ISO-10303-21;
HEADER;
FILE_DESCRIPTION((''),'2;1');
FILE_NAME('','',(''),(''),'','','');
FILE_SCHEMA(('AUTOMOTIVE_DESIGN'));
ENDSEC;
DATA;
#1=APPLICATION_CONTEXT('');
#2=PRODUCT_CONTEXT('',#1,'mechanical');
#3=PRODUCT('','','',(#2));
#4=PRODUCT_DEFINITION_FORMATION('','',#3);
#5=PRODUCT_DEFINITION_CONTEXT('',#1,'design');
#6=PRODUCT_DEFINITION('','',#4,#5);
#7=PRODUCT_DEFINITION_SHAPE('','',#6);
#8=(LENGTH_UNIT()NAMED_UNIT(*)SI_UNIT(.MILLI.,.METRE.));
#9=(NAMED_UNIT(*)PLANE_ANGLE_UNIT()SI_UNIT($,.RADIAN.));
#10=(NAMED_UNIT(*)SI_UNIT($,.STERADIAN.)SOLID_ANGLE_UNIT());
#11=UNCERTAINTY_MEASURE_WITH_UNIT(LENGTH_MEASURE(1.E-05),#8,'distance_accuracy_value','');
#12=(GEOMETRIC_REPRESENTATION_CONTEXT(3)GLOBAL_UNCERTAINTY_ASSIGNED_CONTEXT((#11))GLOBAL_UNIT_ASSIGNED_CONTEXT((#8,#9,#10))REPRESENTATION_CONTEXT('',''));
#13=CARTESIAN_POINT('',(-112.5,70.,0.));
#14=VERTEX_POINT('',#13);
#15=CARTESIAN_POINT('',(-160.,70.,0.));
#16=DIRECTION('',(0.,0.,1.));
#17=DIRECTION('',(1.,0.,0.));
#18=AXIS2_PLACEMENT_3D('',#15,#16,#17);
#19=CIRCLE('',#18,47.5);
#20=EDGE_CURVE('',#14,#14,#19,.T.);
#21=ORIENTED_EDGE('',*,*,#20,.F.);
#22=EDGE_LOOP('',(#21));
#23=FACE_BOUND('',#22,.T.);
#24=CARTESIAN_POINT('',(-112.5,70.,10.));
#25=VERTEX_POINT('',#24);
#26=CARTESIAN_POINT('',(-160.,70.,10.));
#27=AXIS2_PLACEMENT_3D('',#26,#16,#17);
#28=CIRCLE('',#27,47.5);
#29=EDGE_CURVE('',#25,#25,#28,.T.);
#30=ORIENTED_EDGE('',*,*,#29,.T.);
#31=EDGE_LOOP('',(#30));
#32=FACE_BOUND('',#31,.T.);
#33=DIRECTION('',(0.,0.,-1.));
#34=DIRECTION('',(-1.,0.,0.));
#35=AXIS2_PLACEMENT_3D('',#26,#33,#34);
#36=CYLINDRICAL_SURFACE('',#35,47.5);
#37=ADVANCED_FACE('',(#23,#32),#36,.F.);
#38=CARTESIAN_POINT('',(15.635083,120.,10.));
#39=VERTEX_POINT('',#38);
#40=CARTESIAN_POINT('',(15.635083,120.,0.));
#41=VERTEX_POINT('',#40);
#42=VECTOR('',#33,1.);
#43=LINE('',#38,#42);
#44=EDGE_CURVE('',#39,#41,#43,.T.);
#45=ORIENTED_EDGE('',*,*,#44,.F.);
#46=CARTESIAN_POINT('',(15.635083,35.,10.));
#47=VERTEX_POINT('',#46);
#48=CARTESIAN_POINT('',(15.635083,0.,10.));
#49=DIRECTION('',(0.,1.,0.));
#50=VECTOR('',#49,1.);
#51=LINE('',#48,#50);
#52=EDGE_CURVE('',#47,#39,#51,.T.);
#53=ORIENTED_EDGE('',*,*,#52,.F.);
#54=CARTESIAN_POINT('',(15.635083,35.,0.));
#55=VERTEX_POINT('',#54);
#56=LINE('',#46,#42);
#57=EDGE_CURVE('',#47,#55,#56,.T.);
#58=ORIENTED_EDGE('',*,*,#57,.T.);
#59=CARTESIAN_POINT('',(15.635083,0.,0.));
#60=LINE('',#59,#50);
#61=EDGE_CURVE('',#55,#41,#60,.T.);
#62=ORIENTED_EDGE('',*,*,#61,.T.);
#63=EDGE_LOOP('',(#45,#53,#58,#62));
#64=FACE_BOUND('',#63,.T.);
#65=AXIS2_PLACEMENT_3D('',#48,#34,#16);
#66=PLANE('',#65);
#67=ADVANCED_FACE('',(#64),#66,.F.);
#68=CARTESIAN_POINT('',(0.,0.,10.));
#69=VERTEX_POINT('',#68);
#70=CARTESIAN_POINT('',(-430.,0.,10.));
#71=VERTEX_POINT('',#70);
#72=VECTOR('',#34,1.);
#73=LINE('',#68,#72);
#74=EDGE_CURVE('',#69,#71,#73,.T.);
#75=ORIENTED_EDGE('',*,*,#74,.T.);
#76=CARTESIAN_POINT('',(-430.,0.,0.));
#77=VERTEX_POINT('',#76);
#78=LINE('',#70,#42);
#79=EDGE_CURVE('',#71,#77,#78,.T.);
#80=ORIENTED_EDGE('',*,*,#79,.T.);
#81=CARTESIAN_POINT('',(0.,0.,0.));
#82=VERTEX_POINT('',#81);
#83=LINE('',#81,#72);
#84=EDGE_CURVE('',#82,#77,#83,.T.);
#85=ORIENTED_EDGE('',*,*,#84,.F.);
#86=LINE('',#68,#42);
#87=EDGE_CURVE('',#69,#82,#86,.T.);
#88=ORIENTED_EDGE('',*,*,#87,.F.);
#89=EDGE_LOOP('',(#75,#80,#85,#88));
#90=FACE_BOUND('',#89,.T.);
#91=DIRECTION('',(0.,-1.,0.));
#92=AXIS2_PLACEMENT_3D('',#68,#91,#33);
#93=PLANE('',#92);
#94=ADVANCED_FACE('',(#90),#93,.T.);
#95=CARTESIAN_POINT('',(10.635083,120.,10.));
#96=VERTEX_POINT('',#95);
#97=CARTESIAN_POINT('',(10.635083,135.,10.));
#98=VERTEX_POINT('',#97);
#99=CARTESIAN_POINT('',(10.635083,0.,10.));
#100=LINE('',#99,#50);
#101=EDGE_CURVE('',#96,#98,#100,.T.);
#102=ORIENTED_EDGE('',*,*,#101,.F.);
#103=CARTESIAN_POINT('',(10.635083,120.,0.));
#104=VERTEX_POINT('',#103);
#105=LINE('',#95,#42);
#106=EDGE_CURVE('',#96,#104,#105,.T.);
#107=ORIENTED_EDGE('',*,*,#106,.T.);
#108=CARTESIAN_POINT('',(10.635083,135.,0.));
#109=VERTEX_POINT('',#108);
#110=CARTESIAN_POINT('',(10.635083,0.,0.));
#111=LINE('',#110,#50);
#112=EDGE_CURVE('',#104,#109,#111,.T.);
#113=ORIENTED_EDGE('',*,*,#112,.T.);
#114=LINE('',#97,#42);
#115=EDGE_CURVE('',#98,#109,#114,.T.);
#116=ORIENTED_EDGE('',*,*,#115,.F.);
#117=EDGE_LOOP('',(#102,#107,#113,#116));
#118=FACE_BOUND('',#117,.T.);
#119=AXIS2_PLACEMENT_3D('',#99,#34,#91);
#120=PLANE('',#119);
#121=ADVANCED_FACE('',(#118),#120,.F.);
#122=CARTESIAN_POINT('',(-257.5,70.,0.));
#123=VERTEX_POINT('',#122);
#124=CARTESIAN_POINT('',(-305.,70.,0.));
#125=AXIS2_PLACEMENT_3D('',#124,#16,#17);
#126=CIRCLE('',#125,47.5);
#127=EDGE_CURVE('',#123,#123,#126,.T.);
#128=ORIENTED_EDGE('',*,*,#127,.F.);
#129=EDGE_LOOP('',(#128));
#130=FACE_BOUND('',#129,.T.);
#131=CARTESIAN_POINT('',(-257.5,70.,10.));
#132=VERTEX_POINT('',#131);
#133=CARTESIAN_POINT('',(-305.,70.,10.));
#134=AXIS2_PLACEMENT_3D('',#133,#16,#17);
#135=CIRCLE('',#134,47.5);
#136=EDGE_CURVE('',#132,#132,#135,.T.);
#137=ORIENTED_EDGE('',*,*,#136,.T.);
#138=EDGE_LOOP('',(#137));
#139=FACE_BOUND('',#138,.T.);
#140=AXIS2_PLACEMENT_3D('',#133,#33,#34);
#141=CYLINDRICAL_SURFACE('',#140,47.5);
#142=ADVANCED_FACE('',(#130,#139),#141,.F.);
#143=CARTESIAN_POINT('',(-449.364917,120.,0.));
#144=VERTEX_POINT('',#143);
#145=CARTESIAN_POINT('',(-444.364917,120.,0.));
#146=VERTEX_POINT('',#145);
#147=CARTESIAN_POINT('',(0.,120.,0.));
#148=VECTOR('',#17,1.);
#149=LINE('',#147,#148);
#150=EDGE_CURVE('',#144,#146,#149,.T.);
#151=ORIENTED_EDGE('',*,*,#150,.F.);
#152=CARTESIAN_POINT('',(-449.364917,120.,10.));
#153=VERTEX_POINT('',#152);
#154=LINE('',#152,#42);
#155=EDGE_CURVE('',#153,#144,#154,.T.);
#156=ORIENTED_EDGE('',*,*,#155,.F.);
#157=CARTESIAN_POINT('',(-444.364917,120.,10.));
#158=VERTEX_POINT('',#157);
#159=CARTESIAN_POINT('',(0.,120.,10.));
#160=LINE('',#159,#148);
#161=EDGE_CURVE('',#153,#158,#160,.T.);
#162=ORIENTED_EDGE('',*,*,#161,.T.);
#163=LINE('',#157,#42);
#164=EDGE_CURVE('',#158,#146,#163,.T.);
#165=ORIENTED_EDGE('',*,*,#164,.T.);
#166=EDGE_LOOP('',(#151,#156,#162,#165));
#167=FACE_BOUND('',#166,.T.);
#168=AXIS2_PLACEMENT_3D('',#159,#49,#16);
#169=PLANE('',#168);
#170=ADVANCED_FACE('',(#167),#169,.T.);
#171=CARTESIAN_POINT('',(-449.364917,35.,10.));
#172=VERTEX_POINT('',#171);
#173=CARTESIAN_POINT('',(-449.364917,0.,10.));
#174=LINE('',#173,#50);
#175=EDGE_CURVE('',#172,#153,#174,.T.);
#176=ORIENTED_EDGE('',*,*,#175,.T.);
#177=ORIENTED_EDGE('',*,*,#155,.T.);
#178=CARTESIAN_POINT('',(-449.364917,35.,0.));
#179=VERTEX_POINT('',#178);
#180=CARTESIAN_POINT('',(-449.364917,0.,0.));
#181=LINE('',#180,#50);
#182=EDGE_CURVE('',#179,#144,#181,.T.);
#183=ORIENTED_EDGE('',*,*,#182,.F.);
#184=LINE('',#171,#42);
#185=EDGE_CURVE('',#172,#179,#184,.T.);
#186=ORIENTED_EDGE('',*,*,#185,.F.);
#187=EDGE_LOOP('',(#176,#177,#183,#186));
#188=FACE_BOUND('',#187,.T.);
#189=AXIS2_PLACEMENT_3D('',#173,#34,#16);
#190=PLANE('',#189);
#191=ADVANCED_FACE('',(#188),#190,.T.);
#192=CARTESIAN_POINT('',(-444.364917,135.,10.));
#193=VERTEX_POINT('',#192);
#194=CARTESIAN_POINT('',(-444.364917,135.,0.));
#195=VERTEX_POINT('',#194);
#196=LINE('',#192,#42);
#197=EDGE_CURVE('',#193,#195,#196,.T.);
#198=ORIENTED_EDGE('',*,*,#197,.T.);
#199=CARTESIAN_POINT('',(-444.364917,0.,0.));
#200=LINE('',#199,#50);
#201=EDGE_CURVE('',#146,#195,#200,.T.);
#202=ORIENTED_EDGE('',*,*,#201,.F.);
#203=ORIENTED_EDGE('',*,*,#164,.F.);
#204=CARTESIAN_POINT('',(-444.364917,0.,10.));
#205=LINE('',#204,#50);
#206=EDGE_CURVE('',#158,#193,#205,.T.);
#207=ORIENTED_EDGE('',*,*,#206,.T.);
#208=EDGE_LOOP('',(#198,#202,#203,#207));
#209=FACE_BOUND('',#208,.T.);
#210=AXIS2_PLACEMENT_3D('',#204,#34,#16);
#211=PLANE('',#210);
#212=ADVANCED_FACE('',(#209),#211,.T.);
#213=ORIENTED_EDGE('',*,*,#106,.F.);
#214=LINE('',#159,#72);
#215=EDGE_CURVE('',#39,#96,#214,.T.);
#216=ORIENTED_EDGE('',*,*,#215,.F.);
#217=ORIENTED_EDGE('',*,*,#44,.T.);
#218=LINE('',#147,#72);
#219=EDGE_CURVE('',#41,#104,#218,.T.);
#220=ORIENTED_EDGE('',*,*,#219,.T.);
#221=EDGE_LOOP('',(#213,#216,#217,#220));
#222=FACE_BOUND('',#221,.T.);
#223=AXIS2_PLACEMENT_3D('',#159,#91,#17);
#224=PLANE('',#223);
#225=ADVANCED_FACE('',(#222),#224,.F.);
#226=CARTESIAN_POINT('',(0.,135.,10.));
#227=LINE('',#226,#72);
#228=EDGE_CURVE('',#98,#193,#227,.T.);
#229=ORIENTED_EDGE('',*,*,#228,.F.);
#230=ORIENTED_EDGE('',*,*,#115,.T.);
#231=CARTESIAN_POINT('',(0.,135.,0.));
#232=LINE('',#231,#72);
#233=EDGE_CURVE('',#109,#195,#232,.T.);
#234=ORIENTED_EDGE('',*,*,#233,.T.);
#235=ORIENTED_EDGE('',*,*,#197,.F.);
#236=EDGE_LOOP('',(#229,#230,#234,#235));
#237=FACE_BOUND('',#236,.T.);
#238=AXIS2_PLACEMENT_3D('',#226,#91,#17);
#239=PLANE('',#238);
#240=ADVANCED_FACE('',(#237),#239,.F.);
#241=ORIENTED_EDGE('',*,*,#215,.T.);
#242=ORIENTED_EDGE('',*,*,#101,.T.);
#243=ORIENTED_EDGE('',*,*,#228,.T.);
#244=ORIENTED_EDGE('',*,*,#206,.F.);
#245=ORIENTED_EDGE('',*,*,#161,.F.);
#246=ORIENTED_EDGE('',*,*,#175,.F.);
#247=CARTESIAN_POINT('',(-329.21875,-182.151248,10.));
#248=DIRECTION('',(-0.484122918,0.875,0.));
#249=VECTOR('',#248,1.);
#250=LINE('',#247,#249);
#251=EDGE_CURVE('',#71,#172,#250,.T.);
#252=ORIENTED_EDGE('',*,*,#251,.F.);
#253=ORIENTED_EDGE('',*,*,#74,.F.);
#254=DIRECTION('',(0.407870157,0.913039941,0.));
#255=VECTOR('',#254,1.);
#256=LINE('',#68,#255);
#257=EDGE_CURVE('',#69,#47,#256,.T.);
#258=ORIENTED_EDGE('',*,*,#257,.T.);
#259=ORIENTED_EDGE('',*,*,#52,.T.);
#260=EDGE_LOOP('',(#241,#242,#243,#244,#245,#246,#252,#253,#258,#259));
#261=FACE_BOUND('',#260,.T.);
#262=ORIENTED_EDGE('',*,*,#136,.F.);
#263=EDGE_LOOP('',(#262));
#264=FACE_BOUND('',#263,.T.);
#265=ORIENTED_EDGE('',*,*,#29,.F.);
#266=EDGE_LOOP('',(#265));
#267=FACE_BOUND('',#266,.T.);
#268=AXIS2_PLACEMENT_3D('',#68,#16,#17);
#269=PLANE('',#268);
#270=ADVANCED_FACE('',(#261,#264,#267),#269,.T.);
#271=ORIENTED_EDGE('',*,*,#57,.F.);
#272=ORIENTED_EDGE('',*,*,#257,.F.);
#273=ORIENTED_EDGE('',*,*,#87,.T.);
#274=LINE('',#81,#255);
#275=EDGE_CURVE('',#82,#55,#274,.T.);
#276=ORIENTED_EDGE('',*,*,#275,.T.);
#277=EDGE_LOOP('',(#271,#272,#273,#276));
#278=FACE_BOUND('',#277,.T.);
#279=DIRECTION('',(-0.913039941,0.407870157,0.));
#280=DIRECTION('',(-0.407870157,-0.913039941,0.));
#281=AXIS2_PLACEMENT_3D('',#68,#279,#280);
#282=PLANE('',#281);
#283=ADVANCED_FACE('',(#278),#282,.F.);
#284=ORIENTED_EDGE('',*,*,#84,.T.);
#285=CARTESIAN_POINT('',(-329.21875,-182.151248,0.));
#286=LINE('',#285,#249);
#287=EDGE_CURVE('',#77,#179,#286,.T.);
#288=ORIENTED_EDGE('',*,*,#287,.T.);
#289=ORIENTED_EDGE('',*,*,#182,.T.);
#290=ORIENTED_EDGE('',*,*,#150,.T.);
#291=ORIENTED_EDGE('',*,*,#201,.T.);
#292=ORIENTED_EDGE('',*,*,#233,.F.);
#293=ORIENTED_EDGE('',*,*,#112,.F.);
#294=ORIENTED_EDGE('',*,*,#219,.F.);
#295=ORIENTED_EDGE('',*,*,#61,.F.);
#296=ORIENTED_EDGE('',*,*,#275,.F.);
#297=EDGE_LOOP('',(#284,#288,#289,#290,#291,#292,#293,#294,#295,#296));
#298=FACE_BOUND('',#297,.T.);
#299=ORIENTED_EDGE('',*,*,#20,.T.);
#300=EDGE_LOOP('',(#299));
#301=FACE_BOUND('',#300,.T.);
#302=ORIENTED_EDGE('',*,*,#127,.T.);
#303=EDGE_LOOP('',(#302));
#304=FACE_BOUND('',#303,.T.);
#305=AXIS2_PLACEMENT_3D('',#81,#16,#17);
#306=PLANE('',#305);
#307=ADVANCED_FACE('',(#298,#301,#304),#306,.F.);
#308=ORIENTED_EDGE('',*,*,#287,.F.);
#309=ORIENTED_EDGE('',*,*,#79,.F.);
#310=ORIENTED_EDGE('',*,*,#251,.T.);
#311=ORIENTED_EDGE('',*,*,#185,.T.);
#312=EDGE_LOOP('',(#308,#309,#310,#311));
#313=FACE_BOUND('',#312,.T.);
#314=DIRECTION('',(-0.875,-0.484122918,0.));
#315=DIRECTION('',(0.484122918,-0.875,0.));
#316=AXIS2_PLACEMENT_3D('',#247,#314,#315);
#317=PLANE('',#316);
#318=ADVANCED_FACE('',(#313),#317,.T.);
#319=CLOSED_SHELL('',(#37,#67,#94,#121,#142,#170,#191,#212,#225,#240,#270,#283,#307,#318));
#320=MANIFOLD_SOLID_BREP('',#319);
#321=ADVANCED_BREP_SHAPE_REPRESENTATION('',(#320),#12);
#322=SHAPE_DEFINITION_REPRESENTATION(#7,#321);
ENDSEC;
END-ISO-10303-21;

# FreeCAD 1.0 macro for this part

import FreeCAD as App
import Part
import Sketcher
Q = App.Units.Quantity

doc = App.newDocument("Part")
body = doc.addObject("PartDesign::Body", "Body")

# Sketch on XY plane
sketch1 = doc.addObject("Sketcher::SketchObject", "Sketch")
body.addObject(sketch1)
sketch1.AttachmentSupport = (doc.XY_Plane, [""])
sketch1.MapMode = "FlatFace"
sketch1.addGeometry(Part.LineSegment(App.Vector(10.635083, 120, 0), App.Vector(10.635083, 135, 0)), False)
sketch1.addGeometry(Part.LineSegment(App.Vector(10.635083, 135, 0), App.Vector(-444.364917, 135, 0)), False)
sketch1.addGeometry(Part.LineSegment(App.Vector(-444.364917, 135, 0), App.Vector(-444.364917, 120, 0)), False)
sketch1.addGeometry(Part.LineSegment(App.Vector(-444.364917, 120, 0), App.Vector(-449.364917, 120, 0)), False)
sketch1.addGeometry(Part.LineSegment(App.Vector(-449.364917, 120, 0), App.Vector(-449.364917, 35, 0)), False)
sketch1.addGeometry(Part.LineSegment(App.Vector(-449.364917, 35, 0), App.Vector(-430, 0, 0)), False)
sketch1.addGeometry(Part.LineSegment(App.Vector(-430, 0, 0), App.Vector(0, 0, 0)), False)
sketch1.addGeometry(Part.LineSegment(App.Vector(0, 0, 0), App.Vector(15.635083, 35, 0)), False)
sketch1.addGeometry(Part.LineSegment(App.Vector(15.635083, 35, 0), App.Vector(15.635083, 120, 0)), False)
sketch1.addGeometry(Part.LineSegment(App.Vector(15.635083, 120, 0), App.Vector(10.635083, 120, 0)), False)
sketch1.addGeometry(Part.Circle(App.Vector(-305, 70, 0), App.Vector(0, 0, 1), 47.5), False)
sketch1.addGeometry(Part.Circle(App.Vector(-160, 70, 0), App.Vector(0, 0, 1), 47.5), False)
sketch1.addConstraint(Sketcher.Constraint("Coincident", 0, 2, 1, 1))
sketch1.addConstraint(Sketcher.Constraint("Coincident", 1, 2, 2, 1))
sketch1.addConstraint(Sketcher.Constraint("Coincident", 2, 2, 3, 1))
sketch1.addConstraint(Sketcher.Constraint("Coincident", 3, 2, 4, 1))
sketch1.addConstraint(Sketcher.Constraint("Coincident", 4, 2, 5, 1))
sketch1.addConstraint(Sketcher.Constraint("Coincident", 5, 2, 6, 1))
sketch1.addConstraint(Sketcher.Constraint("Coincident", 6, 2, 7, 1))
sketch1.addConstraint(Sketcher.Constraint("Coincident", 7, 2, 8, 1))
sketch1.addConstraint(Sketcher.Constraint("Coincident", 8, 2, 9, 1))
sketch1.addConstraint(Sketcher.Constraint("Coincident", 9, 2, 0, 1))
sketch1.addConstraint(Sketcher.Constraint("Vertical", 0))
sketch1.addConstraint(Sketcher.Constraint("Horizontal", 1))
sketch1.addConstraint(Sketcher.Constraint("Vertical", 2))
sketch1.addConstraint(Sketcher.Constraint("Horizontal", 3))
sketch1.addConstraint(Sketcher.Constraint("Vertical", 4))
sketch1.addConstraint(Sketcher.Constraint("Horizontal", 6))
sketch1.addConstraint(Sketcher.Constraint("Vertical", 8))
sketch1.addConstraint(Sketcher.Constraint("Horizontal", 9))
sketch1.addConstraint(Sketcher.Constraint("Coincident", 6, 2, -1, 1))
sketch1.addConstraint(Sketcher.Constraint("Equal", 10, 11))
sketch1.addConstraint(Sketcher.Constraint("Horizontal", 10, 3, 11, 3))
sketch1.addConstraint(Sketcher.Constraint("Horizontal", 4, 2, 7, 2))
sketch1.addConstraint(Sketcher.Constraint("Horizontal", 3, 2, 8, 2))
sketch1.addConstraint(Sketcher.Constraint("Equal", 3, 9))
sketch1.addConstraint(Sketcher.Constraint("Diameter", 10, Q("95 mm")))
sketch1.addConstraint(Sketcher.Constraint("DistanceX", 1, 2, 1, 1, Q("455 mm")))
sketch1.addConstraint(Sketcher.Constraint("DistanceX", 3, 2, 3, 1, Q("5 mm")))
sketch1.addConstraint(Sketcher.Constraint("DistanceX", 6, 1, 6, 2, Q("430 mm")))
sketch1.addConstraint(Sketcher.Constraint("DistanceY", 0, 1, 0, 2, Q("15 mm")))
sketch1.addConstraint(Sketcher.Constraint("DistanceY", 4, 2, 4, 1, Q("85 mm")))
sketch1.addConstraint(Sketcher.Constraint("Distance", 5, Q("40 mm")))
sketch1.addConstraint(Sketcher.Constraint("DistanceX", 10, 3, -1, 1, Q("305 mm")))
sketch1.addConstraint(Sketcher.Constraint("DistanceY", -1, 1, 10, 3, Q("70 mm")))
sketch1.addConstraint(Sketcher.Constraint("DistanceX", 11, 3, -1, 1, Q("160 mm")))
sketch1.addConstraint(Sketcher.Constraint("DistanceY", -1, 1, 0, 2, Q("135 mm")))
pad1 = doc.addObject("PartDesign::Pad", "Pad")
body.addObject(pad1)
pad1.Profile = sketch1
pad1.Length = 10

doc.recompute()
